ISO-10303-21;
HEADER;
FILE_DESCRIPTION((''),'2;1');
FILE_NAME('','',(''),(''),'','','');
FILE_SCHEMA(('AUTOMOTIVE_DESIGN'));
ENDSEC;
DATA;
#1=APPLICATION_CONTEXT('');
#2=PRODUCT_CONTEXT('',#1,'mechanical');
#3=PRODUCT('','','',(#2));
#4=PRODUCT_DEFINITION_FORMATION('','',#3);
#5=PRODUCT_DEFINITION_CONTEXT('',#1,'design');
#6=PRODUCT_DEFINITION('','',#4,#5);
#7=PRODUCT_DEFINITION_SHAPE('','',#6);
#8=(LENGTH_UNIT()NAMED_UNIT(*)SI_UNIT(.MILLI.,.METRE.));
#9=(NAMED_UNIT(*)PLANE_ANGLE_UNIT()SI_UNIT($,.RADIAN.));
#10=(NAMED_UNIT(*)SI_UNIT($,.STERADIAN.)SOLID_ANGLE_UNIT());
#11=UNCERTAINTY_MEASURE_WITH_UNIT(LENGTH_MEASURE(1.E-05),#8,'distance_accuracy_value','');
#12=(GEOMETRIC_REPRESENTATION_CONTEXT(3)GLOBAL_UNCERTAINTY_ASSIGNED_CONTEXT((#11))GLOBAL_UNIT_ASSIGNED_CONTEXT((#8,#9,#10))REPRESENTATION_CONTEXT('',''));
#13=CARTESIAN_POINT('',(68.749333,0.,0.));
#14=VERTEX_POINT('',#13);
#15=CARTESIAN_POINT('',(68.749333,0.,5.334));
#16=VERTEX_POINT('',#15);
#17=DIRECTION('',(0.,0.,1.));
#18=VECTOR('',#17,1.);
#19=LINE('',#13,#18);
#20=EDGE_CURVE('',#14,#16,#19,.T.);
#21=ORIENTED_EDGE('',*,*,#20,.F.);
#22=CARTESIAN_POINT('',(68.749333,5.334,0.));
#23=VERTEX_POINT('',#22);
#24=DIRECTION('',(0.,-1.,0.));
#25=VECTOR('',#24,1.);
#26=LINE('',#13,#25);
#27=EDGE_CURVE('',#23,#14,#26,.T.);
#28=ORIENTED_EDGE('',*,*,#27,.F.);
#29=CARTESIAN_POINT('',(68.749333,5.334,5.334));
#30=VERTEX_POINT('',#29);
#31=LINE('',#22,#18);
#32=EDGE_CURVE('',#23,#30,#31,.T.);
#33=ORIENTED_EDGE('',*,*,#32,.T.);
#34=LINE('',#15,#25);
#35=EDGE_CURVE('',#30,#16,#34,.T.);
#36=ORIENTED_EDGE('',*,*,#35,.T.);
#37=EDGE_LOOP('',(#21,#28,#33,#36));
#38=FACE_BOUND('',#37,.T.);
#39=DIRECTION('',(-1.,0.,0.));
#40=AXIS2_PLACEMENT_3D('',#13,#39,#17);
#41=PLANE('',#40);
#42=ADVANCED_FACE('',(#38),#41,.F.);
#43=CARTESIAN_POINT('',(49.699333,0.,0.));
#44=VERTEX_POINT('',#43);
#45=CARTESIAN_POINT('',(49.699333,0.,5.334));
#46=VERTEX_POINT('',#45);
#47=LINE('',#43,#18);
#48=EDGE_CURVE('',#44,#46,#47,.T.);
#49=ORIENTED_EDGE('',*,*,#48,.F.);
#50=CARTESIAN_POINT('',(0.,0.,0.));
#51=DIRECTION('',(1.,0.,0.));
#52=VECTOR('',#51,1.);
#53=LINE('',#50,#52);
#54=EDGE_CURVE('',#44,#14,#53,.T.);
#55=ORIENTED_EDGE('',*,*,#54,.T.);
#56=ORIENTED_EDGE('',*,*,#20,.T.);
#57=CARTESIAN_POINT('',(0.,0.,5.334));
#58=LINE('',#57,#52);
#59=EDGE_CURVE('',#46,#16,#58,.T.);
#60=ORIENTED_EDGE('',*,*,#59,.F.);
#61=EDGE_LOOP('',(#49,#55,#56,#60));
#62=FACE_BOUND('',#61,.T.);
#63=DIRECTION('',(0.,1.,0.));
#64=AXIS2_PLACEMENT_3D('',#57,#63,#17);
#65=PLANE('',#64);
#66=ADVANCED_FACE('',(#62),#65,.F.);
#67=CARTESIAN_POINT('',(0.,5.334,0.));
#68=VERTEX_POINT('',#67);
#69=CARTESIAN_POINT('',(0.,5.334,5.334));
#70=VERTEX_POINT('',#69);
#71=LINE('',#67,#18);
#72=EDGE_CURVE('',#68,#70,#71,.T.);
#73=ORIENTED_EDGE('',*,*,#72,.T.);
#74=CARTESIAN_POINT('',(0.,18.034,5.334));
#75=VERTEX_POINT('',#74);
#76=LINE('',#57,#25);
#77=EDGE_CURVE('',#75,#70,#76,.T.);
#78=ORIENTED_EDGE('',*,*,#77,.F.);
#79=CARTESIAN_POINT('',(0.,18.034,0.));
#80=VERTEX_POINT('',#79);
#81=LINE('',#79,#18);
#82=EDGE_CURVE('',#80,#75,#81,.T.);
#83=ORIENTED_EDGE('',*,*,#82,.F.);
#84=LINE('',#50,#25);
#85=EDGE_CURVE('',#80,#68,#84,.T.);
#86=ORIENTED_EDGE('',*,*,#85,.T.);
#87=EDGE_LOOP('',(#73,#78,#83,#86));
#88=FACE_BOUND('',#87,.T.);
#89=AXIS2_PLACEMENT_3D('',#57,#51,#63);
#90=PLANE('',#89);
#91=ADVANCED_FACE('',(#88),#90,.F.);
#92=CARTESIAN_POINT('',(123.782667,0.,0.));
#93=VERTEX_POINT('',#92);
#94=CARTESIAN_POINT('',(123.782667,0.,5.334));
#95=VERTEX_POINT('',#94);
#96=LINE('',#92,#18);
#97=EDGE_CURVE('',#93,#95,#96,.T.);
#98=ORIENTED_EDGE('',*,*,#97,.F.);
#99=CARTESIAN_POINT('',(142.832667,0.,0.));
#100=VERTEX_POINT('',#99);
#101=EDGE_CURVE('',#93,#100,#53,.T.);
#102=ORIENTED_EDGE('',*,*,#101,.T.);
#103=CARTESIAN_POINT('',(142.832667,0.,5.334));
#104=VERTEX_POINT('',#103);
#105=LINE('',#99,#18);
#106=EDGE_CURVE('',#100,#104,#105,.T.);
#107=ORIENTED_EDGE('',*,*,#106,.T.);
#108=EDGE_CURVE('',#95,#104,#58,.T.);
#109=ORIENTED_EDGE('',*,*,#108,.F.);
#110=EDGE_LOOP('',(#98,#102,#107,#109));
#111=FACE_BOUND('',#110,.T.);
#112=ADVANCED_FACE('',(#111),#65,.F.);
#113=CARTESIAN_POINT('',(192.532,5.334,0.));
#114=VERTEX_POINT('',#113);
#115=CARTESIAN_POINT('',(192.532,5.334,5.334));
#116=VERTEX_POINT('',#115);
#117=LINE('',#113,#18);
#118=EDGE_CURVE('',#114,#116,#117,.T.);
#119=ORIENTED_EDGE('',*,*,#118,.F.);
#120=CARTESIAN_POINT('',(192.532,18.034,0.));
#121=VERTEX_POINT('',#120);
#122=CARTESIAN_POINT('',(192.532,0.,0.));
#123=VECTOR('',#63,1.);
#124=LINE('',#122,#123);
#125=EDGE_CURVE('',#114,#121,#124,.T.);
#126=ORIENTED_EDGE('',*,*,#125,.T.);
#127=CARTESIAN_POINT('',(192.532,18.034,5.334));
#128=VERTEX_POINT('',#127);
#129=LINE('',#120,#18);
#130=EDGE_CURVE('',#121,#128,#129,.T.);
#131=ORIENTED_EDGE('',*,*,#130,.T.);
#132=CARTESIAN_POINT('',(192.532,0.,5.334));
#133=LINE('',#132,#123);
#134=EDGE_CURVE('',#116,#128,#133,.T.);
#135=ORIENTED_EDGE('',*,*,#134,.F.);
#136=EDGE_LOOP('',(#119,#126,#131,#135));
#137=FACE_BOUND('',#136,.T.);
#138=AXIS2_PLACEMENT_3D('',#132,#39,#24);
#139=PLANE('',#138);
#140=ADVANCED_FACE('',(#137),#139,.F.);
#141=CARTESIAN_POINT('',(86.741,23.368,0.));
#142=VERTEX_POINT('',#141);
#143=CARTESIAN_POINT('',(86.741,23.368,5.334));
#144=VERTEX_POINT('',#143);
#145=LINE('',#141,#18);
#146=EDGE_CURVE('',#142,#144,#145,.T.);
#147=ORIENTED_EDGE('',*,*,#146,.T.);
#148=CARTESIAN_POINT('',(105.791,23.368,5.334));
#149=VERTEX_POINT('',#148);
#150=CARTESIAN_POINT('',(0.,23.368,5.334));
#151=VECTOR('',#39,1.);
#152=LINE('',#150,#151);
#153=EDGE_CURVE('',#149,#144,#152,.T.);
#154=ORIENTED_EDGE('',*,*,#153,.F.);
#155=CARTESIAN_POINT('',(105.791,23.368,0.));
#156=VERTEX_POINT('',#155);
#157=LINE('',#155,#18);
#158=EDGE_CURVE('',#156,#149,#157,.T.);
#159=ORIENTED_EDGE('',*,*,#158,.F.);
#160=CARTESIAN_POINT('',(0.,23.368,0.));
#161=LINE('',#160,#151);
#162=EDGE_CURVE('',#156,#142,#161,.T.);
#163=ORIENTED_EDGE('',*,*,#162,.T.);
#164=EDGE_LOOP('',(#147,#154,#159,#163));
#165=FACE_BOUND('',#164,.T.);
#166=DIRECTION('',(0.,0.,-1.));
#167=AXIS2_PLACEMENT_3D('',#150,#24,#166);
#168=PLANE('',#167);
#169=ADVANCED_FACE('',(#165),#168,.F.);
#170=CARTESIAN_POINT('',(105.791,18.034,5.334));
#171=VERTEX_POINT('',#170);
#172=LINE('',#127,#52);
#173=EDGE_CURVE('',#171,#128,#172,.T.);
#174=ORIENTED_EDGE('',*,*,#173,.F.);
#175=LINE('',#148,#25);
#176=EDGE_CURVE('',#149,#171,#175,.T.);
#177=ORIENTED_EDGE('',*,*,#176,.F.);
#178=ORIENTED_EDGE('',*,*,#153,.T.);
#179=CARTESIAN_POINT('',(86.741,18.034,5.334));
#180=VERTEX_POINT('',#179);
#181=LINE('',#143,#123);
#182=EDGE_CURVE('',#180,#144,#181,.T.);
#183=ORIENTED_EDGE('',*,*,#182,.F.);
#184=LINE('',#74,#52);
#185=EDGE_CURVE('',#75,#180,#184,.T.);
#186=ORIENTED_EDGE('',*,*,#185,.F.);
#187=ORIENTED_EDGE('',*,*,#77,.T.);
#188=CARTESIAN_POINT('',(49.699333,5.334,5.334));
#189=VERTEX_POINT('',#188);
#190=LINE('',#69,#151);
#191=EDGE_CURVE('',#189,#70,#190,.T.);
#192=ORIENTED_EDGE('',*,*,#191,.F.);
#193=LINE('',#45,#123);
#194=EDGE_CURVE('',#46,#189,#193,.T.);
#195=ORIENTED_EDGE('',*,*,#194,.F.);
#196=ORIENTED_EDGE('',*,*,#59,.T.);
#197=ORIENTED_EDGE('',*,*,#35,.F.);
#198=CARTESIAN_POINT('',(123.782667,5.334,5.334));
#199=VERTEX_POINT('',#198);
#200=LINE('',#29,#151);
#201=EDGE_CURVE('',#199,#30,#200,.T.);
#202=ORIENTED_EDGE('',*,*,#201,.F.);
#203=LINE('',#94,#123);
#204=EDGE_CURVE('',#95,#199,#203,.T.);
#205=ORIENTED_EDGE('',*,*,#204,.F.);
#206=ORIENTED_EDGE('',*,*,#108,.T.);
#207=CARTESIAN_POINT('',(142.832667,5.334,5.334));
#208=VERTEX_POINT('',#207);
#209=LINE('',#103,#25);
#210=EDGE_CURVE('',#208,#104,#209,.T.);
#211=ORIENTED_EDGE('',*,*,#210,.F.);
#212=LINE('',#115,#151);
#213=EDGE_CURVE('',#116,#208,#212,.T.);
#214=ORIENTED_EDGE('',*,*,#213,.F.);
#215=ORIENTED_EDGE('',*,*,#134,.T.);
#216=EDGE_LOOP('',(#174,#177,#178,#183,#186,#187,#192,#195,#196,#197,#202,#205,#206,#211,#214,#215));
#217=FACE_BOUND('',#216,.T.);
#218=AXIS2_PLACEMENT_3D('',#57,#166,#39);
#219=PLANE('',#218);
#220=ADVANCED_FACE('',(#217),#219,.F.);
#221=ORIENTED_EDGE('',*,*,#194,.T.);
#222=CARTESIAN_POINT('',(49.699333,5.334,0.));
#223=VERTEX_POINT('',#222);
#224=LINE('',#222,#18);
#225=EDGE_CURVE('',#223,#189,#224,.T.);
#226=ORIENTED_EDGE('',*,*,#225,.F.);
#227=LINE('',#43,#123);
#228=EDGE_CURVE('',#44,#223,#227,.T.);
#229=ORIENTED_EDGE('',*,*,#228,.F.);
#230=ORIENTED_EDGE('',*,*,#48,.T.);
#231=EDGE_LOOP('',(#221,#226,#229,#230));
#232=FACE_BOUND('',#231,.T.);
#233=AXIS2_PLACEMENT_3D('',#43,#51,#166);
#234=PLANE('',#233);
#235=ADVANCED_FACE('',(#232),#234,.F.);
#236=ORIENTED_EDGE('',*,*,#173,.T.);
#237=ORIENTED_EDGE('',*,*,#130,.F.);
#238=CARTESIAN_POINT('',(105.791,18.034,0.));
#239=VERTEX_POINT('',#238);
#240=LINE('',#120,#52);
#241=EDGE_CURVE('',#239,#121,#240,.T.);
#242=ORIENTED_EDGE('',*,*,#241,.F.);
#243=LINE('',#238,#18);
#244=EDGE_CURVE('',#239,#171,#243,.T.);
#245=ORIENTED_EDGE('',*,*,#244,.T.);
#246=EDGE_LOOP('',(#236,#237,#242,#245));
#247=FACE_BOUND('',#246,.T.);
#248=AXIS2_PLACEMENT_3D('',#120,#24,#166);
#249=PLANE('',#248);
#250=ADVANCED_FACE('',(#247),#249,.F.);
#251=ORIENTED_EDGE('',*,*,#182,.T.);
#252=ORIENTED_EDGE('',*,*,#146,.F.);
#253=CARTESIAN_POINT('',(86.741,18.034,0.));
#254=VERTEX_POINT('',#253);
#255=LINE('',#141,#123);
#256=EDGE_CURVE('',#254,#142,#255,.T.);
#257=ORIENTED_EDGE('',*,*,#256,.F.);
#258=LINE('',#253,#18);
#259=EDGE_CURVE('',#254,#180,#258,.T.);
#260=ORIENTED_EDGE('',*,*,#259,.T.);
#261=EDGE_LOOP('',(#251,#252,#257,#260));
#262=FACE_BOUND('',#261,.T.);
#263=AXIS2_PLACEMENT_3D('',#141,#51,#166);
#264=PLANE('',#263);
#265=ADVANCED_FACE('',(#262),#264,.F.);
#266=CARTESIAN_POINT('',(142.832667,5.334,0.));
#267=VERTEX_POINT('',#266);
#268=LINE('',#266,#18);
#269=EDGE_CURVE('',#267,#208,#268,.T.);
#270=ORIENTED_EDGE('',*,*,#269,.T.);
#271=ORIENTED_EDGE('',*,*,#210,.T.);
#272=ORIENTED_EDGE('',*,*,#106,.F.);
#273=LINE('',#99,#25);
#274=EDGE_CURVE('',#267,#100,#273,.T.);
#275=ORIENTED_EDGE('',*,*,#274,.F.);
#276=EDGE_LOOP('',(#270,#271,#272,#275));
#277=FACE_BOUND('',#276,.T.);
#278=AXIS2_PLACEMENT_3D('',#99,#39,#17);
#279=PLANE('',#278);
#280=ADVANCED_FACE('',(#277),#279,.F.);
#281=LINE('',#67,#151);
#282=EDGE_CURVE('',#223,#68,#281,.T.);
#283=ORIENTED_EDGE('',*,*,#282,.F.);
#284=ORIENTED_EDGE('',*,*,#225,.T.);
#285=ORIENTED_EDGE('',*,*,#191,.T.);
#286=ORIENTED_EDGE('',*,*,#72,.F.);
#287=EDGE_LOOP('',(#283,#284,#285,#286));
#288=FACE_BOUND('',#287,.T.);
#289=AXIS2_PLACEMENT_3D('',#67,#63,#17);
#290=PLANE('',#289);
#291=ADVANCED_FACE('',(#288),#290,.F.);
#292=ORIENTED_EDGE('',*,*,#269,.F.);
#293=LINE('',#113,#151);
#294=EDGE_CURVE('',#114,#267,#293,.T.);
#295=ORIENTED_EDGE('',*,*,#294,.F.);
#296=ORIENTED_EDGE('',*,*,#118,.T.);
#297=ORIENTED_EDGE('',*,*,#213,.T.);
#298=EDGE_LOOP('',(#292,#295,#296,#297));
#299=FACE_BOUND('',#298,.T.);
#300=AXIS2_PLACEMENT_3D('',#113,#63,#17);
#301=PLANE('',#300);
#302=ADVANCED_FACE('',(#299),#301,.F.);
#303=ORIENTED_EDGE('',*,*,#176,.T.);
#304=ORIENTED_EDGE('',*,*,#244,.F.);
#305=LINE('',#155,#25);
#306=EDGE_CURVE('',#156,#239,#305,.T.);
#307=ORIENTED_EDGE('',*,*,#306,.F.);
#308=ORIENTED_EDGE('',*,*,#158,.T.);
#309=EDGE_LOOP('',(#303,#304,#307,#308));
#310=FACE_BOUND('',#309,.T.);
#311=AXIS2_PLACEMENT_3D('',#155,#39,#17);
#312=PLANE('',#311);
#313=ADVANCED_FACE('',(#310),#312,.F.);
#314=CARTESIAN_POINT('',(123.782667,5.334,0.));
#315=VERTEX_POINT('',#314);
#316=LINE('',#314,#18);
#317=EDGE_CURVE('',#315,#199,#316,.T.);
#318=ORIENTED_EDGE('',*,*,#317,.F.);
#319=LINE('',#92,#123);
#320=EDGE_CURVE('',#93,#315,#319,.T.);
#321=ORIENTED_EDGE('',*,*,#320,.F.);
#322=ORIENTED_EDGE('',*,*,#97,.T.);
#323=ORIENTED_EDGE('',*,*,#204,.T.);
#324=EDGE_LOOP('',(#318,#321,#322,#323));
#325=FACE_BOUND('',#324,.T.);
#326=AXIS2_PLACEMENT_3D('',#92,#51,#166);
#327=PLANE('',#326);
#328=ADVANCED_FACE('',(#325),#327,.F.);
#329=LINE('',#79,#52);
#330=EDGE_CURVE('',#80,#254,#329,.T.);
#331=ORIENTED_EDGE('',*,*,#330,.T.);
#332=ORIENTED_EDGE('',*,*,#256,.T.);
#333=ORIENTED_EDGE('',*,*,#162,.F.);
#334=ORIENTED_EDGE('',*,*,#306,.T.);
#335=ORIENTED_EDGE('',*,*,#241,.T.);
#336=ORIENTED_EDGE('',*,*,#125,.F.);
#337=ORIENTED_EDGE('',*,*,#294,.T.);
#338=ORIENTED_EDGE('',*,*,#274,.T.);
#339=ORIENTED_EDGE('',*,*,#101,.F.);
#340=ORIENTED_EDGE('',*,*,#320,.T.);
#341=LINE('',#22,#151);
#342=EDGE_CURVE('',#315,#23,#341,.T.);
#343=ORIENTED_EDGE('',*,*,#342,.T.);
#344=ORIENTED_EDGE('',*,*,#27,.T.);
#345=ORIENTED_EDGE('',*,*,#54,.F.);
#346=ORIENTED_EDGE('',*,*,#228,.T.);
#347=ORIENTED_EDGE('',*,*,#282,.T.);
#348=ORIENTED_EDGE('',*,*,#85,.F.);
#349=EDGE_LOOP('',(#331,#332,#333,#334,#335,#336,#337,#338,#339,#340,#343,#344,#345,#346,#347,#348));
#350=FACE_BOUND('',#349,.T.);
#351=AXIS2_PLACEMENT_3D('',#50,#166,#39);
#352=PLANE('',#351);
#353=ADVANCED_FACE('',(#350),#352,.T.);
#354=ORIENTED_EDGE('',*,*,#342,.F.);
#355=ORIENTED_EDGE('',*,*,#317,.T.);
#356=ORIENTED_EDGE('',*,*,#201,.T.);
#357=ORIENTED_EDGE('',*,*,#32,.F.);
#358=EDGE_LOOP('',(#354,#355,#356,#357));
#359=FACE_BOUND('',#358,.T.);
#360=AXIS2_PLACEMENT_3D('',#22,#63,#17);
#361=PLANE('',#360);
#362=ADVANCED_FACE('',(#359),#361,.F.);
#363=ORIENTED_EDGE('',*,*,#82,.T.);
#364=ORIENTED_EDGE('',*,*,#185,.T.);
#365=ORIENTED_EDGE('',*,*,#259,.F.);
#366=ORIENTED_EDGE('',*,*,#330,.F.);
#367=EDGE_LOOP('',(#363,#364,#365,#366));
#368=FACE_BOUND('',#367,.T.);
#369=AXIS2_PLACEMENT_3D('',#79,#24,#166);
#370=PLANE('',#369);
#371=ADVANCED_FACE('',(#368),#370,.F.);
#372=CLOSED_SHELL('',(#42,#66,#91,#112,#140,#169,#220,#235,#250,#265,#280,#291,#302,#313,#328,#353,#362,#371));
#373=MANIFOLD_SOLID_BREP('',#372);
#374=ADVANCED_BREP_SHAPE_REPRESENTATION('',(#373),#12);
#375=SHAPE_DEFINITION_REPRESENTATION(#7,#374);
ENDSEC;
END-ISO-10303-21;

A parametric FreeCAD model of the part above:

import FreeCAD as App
import Part
import Sketcher
from FreeCAD import Vector
Q = App.Units.Quantity

doc = App.newDocument("Part")
body = doc.addObject("PartDesign::Body", "Body")

# Sketch on XY plane
sketch1 = body.newObject("Sketcher::SketchObject", "Sketch")
sketch1.AttachmentSupport = (doc.getObject("XY_Plane"), [""])
sketch1.MapMode = "FlatFace"
sketch1.addGeometry(Part.LineSegment(Vector(0, 23, 0), Vector(0, 0, 0)), False)
sketch1.addGeometry(Part.LineSegment(Vector(0, 0, 0), Vector(193, 0, 0)), False)
sketch1.addGeometry(Part.LineSegment(Vector(193, 0, 0), Vector(193, 23, 0)), False)
sketch1.addGeometry(Part.LineSegment(Vector(193, 23, 0), Vector(0, 23, 0)), False)
sketch1.addConstraint(Sketcher.Constraint("Coincident", 0, 2, 1, 1))
sketch1.addConstraint(Sketcher.Constraint("Coincident", 1, 2, 2, 1))
sketch1.addConstraint(Sketcher.Constraint("Coincident", 2, 2, 3, 1))
sketch1.addConstraint(Sketcher.Constraint("Coincident", 3, 2, 0, 1))
sketch1.addConstraint(Sketcher.Constraint("Vertical", 0))
sketch1.addConstraint(Sketcher.Constraint("Horizontal", 1))
sketch1.addConstraint(Sketcher.Constraint("Vertical", 2))
sketch1.addConstraint(Sketcher.Constraint("Horizontal", 3))
sketch1.addConstraint(Sketcher.Constraint("Coincident", 0, 2, -1, 1))
sketch1.addConstraint(Sketcher.Constraint("DistanceX", 1, 1, 1, 2, Q("7.58 in")))
sketch1.addConstraint(Sketcher.Constraint("DistanceY", 0, 2, 0, 1, Q("0.92 in")))
pad1 = body.newObject("PartDesign::Pad", "Pad")
pad1.Profile = sketch1
pad1.Length = Q("0.21 in")

# Sketch on XY plane
sketch2 = body.newObject("Sketcher::SketchObject", "Sketch001")
sketch2.AttachmentSupport = (doc.getObject("XY_Plane"), [""])
sketch2.MapMode = "FlatFace"
sketch2.AttachmentOffset = App.Placement(Vector(0, 0, 0.21 * 25.4), App.Rotation())
sketch2.addGeometry(Part.LineSegment(Vector(0, 5, 0), Vector(0, 0, 0)), False)
sketch2.addGeometry(Part.LineSegment(Vector(0, 0, 0), Vector(50, 0, 0)), False)
sketch2.addGeometry(Part.LineSegment(Vector(50, 0, 0), Vector(50, 5, 0)), False)
sketch2.addGeometry(Part.LineSegment(Vector(50, 5, 0), Vector(0, 5, 0)), False)
sketch2.addGeometry(Part.LineSegment(Vector(69, 5, 0), Vector(69, 0, 0)), False)
sketch2.addGeometry(Part.LineSegment(Vector(69, 0, 0), Vector(124, 0, 0)), False)
sketch2.addGeometry(Part.LineSegment(Vector(124, 0, 0), Vector(124, 5, 0)), False)
sketch2.addGeometry(Part.LineSegment(Vector(124, 5, 0), Vector(69, 5, 0)), False)
sketch2.addGeometry(Part.LineSegment(Vector(143, 5, 0), Vector(143, 0, 0)), False)
sketch2.addGeometry(Part.LineSegment(Vector(143, 0, 0), Vector(193, 0, 0)), False)
sketch2.addGeometry(Part.LineSegment(Vector(193, 0, 0), Vector(193, 5, 0)), False)
sketch2.addGeometry(Part.LineSegment(Vector(193, 5, 0), Vector(143, 5, 0)), False)
sketch2.addGeometry(Part.LineSegment(Vector(0, 23, 0), Vector(0, 18, 0)), False)
sketch2.addGeometry(Part.LineSegment(Vector(0, 18, 0), Vector(87, 18, 0)), False)
sketch2.addGeometry(Part.LineSegment(Vector(87, 18, 0), Vector(87, 23, 0)), False)
sketch2.addGeometry(Part.LineSegment(Vector(87, 23, 0), Vector(0, 23, 0)), False)
sketch2.addGeometry(Part.LineSegment(Vector(106, 23, 0), Vector(106, 18, 0)), False)
sketch2.addGeometry(Part.LineSegment(Vector(106, 18, 0), Vector(193, 18, 0)), False)
sketch2.addGeometry(Part.LineSegment(Vector(193, 18, 0), Vector(193, 23, 0)), False)
sketch2.addGeometry(Part.LineSegment(Vector(193, 23, 0), Vector(106, 23, 0)), False)
sketch2.addConstraint(Sketcher.Constraint("Coincident", 0, 2, 1, 1))
sketch2.addConstraint(Sketcher.Constraint("Coincident", 1, 2, 2, 1))
sketch2.addConstraint(Sketcher.Constraint("Coincident", 2, 2, 3, 1))
sketch2.addConstraint(Sketcher.Constraint("Coincident", 3, 2, 0, 1))
sketch2.addConstraint(Sketcher.Constraint("Coincident", 4, 2, 5, 1))
sketch2.addConstraint(Sketcher.Constraint("Coincident", 5, 2, 6, 1))
sketch2.addConstraint(Sketcher.Constraint("Coincident", 6, 2, 7, 1))
sketch2.addConstraint(Sketcher.Constraint("Coincident", 7, 2, 4, 1))
sketch2.addConstraint(Sketcher.Constraint("Coincident", 8, 2, 9, 1))
sketch2.addConstraint(Sketcher.Constraint("Coincident", 9, 2, 10, 1))
sketch2.addConstraint(Sketcher.Constraint("Coincident", 10, 2, 11, 1))
sketch2.addConstraint(Sketcher.Constraint("Coincident", 11, 2, 8, 1))
sketch2.addConstraint(Sketcher.Constraint("Coincident", 12, 2, 13, 1))
sketch2.addConstraint(Sketcher.Constraint("Coincident", 13, 2, 14, 1))
sketch2.addConstraint(Sketcher.Constraint("Coincident", 14, 2, 15, 1))
sketch2.addConstraint(Sketcher.Constraint("Coincident", 15, 2, 12, 1))
sketch2.addConstraint(Sketcher.Constraint("Coincident", 16, 2, 17, 1))
sketch2.addConstraint(Sketcher.Constraint("Coincident", 17, 2, 18, 1))
sketch2.addConstraint(Sketcher.Constraint("Coincident", 18, 2, 19, 1))
sketch2.addConstraint(Sketcher.Constraint("Coincident", 19, 2, 16, 1))
sketch2.addConstraint(Sketcher.Constraint("Vertical", 0))
sketch2.addConstraint(Sketcher.Constraint("Horizontal", 1))
sketch2.addConstraint(Sketcher.Constraint("Vertical", 2))
sketch2.addConstraint(Sketcher.Constraint("Horizontal", 3))
sketch2.addConstraint(Sketcher.Constraint("Vertical", 4))
sketch2.addConstraint(Sketcher.Constraint("Horizontal", 5))
sketch2.addConstraint(Sketcher.Constraint("Vertical", 6))
sketch2.addConstraint(Sketcher.Constraint("Horizontal", 7))
sketch2.addConstraint(Sketcher.Constraint("Vertical", 8))
sketch2.addConstraint(Sketcher.Constraint("Horizontal", 9))
sketch2.addConstraint(Sketcher.Constraint("Vertical", 10))
sketch2.addConstraint(Sketcher.Constraint("Horizontal", 11))
sketch2.addConstraint(Sketcher.Constraint("Vertical", 12))
sketch2.addConstraint(Sketcher.Constraint("Horizontal", 13))
sketch2.addConstraint(Sketcher.Constraint("Vertical", 14))
sketch2.addConstraint(Sketcher.Constraint("Horizontal", 15))
sketch2.addConstraint(Sketcher.Constraint("Vertical", 16))
sketch2.addConstraint(Sketcher.Constraint("Horizontal", 17))
sketch2.addConstraint(Sketcher.Constraint("Vertical", 18))
sketch2.addConstraint(Sketcher.Constraint("Horizontal", 19))
sketch2.addConstraint(Sketcher.Constraint("Coincident", 0, 2, -1, 1))
sketch2.addConstraint(Sketcher.Constraint("PointOnObject", 4, 2, -1))
sketch2.addConstraint(Sketcher.Constraint("PointOnObject", 8, 2, -1))
sketch2.addConstraint(Sketcher.Constraint("PointOnObject", 12, 2, -2))
sketch2.addConstraint(Sketcher.Constraint("Horizontal", 3, 2, 6, 2))
sketch2.addConstraint(Sketcher.Constraint("Horizontal", 7, 2, 10, 2))
sketch2.addConstraint(Sketcher.Constraint("Horizontal", 13, 2, 16, 2))
sketch2.addConstraint(Sketcher.Constraint("Horizontal", 15, 2, 18, 2))
sketch2.addConstraint(Sketcher.Constraint("Vertical", 10, 2, 17, 2))
sketch2.addConstraint(Sketcher.Constraint("Equal", 3, 9))
sketch2.addConstraint(Sketcher.Constraint("Equal", 15, 17))
sketch2.addConstraint(Sketcher.Constraint("Equal", 10, 12))
sketch2.addConstraint(Sketcher.Constraint("DistanceY", 0, 2, 0, 1, Q("0.21 in")))
sketch2.addConstraint(Sketcher.Constraint("DistanceY", 3, 2, 12, 2, Q("0.5 in")))
sketch2.addConstraint(Sketcher.Constraint("DistanceX", 13, 1, 13, 2, Q("3.415 in")))
sketch2.addConstraint(Sketcher.Constraint("DistanceX", -1, 1, 9, 2, Q("7.58 in")))
sketch2.addConstraint(Sketcher.Constraint("DistanceX", 1, 2, 4, 2, Q("0.75 in")))
sketch2.addConstraint(Sketcher.Constraint("DistanceX", 5, 2, 8, 2, Q("0.75 in")))
sketch2.addConstraint(Sketcher.Constraint("DistanceX", 1, 1, 1, 2, Q("49.699333 mm")))
pocket1 = body.newObject("PartDesign::Pocket", "Pocket")
pocket1.Profile = sketch2
pocket1.Type = "ThroughAll"

doc.recompute()
